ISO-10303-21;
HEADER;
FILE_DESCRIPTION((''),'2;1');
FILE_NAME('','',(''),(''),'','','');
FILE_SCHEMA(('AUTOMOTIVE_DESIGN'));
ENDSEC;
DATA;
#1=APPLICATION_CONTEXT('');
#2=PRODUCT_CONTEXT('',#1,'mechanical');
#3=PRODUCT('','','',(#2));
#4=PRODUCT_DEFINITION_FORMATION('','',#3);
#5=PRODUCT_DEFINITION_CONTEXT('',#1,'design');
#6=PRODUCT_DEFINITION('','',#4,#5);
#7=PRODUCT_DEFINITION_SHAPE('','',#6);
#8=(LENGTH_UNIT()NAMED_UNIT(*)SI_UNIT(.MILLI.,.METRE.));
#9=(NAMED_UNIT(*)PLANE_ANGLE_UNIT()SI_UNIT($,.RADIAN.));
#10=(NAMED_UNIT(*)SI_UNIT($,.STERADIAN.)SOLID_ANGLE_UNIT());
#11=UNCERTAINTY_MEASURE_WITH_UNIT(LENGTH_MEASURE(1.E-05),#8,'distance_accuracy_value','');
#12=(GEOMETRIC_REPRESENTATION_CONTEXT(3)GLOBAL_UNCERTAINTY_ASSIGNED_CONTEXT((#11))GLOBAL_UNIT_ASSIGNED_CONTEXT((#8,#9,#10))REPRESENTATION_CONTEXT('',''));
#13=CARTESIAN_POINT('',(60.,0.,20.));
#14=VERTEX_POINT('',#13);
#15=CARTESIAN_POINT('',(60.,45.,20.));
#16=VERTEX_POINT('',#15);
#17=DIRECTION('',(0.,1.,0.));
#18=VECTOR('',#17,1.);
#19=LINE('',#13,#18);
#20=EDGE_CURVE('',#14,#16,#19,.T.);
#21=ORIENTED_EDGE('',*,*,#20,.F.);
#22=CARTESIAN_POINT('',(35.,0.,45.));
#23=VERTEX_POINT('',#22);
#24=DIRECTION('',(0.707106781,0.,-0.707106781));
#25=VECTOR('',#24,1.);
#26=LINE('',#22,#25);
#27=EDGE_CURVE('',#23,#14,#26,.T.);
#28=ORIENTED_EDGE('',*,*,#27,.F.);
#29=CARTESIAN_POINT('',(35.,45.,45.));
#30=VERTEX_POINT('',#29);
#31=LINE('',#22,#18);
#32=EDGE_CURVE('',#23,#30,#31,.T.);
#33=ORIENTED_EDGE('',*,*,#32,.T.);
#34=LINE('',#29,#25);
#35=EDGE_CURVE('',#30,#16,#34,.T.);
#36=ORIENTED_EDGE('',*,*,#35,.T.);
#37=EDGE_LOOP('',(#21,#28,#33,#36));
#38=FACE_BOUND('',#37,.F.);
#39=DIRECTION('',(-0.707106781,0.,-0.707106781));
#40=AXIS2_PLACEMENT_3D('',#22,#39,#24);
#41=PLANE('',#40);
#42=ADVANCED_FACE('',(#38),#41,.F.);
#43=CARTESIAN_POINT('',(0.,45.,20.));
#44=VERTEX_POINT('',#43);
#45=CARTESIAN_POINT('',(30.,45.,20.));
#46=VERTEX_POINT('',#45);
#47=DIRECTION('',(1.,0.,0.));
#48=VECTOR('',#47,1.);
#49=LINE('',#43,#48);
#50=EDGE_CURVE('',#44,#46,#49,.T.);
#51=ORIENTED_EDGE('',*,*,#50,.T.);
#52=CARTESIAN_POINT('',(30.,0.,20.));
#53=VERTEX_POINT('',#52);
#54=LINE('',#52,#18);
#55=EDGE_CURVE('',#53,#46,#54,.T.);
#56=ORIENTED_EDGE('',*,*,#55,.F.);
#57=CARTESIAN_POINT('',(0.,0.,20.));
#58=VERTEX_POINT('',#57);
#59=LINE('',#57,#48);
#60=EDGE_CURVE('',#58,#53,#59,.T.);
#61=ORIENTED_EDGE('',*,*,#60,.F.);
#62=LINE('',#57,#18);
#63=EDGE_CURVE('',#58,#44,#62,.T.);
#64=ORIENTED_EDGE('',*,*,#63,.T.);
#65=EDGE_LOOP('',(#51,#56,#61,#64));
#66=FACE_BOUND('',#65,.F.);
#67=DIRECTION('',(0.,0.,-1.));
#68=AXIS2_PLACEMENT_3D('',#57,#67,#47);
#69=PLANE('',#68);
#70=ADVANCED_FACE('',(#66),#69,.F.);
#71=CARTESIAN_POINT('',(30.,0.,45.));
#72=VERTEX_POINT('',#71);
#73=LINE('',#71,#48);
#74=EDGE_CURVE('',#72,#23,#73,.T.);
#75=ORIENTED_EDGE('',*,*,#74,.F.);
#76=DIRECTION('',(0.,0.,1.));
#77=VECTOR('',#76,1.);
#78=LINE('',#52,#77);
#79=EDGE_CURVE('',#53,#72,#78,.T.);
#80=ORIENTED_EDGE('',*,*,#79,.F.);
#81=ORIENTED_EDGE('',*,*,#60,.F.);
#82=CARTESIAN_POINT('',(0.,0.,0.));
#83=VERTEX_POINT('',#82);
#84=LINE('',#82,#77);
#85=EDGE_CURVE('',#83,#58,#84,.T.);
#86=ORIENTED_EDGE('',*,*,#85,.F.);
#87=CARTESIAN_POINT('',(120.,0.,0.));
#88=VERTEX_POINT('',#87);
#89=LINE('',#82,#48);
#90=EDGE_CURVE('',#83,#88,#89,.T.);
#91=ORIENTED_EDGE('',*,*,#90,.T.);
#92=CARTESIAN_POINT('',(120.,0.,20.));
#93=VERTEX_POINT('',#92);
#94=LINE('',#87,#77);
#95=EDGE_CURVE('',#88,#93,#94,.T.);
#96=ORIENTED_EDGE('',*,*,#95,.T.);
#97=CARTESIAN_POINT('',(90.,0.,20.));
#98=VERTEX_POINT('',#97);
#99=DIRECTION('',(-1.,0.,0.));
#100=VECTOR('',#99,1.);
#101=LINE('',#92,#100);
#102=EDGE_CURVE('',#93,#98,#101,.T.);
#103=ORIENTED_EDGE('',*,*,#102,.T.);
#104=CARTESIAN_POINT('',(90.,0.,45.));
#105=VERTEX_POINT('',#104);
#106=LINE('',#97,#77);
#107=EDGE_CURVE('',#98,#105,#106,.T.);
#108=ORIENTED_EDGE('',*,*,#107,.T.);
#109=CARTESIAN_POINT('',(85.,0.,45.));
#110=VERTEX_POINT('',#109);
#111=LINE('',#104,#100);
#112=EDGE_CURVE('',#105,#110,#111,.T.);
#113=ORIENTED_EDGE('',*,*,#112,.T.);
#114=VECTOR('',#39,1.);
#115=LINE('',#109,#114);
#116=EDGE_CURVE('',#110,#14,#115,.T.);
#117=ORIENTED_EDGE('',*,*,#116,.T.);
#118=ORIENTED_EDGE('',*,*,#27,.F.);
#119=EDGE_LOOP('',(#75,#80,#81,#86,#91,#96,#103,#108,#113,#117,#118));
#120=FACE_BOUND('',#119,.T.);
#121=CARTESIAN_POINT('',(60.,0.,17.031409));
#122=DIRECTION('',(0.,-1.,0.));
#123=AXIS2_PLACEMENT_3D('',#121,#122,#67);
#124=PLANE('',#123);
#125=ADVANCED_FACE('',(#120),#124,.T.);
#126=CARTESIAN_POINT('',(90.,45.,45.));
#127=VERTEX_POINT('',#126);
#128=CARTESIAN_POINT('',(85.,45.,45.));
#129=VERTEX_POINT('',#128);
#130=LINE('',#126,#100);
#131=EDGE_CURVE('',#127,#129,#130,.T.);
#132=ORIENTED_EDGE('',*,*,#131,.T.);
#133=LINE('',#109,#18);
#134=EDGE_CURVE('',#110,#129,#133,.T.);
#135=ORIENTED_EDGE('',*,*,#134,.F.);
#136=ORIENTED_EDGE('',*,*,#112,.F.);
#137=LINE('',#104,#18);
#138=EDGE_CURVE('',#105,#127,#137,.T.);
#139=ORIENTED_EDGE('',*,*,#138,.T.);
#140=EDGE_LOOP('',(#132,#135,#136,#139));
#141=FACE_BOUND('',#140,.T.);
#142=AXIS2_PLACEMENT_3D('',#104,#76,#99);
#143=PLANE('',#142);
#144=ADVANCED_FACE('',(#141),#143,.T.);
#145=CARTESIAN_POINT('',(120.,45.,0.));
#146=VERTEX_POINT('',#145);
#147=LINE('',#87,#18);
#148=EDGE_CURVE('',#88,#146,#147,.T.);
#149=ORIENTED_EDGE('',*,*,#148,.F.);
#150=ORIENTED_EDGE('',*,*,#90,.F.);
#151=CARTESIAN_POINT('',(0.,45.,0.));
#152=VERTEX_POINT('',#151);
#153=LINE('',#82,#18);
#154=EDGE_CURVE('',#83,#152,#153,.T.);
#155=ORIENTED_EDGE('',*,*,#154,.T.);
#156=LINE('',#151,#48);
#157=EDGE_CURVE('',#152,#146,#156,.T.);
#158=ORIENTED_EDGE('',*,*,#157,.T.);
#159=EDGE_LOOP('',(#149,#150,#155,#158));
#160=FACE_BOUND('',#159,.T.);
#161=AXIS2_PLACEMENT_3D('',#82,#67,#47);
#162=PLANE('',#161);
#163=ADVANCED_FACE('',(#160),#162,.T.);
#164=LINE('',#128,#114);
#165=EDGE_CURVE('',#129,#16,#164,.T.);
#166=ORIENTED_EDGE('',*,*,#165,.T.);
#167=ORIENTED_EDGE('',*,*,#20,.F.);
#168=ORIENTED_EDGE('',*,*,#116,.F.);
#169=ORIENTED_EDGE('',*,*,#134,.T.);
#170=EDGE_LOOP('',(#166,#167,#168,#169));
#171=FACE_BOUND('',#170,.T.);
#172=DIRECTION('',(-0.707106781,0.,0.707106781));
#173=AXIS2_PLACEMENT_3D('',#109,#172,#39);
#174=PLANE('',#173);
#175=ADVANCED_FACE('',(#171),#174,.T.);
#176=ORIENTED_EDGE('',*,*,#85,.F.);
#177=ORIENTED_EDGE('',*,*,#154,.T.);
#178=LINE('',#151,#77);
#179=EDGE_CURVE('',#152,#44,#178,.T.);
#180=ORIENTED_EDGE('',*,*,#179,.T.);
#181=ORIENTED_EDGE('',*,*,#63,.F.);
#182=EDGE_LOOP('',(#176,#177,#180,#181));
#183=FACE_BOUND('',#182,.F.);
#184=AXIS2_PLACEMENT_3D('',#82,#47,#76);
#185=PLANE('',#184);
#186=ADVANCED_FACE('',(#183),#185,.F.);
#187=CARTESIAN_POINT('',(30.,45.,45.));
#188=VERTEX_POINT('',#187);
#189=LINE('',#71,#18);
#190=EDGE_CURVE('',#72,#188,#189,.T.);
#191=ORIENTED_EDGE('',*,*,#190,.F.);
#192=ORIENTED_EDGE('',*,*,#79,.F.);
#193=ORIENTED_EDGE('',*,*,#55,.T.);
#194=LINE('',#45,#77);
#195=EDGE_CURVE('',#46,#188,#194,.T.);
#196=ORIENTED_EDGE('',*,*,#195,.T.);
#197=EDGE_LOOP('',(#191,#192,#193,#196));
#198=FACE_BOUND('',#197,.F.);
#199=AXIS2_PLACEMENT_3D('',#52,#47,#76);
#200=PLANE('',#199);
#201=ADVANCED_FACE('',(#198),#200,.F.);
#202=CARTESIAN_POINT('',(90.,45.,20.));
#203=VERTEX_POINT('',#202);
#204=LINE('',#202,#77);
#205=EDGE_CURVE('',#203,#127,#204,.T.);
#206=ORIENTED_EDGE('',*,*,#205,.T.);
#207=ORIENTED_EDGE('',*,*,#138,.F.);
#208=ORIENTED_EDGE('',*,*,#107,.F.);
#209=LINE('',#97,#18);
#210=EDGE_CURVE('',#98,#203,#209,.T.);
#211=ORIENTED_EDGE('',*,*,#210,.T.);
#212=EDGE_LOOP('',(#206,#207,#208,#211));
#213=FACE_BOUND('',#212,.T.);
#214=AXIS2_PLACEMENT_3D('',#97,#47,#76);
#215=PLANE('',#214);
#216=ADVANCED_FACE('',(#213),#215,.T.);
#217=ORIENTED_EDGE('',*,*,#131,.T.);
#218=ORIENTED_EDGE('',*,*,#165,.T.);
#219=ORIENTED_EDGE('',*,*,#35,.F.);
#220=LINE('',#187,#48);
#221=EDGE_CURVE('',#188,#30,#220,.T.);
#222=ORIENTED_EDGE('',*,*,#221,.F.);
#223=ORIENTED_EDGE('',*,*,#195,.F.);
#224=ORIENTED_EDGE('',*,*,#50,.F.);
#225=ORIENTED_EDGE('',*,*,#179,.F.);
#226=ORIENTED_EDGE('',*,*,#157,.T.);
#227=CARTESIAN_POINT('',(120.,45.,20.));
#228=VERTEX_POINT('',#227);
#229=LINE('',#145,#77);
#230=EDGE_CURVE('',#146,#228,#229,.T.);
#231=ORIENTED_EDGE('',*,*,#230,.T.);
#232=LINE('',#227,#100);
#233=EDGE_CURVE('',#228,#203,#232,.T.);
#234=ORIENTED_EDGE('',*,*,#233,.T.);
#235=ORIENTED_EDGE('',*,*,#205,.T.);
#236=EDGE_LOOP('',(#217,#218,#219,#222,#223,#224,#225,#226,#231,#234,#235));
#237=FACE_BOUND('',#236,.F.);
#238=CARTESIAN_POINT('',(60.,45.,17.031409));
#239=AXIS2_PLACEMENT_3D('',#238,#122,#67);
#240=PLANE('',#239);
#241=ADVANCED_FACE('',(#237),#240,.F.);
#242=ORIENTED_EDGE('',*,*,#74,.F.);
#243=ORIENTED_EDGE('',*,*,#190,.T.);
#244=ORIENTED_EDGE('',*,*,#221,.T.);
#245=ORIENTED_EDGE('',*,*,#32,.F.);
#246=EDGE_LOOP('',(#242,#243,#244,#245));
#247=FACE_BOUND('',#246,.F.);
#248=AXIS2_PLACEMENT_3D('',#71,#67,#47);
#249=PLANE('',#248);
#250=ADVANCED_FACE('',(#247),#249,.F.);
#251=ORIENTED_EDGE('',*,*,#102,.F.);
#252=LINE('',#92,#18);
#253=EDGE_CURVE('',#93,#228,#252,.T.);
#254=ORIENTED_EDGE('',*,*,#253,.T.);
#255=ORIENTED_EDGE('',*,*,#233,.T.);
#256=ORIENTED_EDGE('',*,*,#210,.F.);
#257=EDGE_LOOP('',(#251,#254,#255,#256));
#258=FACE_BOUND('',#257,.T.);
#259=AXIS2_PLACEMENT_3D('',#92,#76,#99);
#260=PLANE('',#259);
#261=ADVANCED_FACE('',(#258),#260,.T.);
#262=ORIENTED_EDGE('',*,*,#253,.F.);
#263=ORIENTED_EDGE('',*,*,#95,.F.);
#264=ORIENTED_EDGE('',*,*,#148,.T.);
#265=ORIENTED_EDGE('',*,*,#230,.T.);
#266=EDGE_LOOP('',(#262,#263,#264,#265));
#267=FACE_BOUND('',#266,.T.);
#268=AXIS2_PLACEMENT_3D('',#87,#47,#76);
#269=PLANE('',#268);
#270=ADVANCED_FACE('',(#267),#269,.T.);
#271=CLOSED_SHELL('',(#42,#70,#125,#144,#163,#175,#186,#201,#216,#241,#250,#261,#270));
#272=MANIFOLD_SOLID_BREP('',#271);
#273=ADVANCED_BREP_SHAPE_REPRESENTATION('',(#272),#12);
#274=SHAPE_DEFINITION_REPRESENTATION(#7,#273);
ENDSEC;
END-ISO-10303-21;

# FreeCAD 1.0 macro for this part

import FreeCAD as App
import Part
import Sketcher
from FreeCAD import Vector


def add_polygon(sketch, points):
    """Adds a closed chain of lines whose ends are joined by coincident constraints."""
    first, n = sketch.GeometryCount, len(points)
    for a, b in zip(points, points[1:] + points[:1]):
        sketch.addGeometry(Part.LineSegment(App.Vector(*a, 0), App.Vector(*b, 0)), False)
    for i in range(n):
        sketch.addConstraint(Sketcher.Constraint("Coincident", first + i, 2, first + (i + 1) % n, 1))

doc = App.newDocument("Part")
body = doc.addObject("PartDesign::Body", "Body")

# Sketch on XZ plane
sketch1 = body.newObject("Sketcher::SketchObject", "Sketch")
sketch1.AttachmentSupport = (doc.getObject("XZ_Plane"), [""])
sketch1.MapMode = "FlatFace"
add_polygon(sketch1, [(120, 20), (90, 20), (90, 45), (85, 45), (60, 20), (35, 45), (30, 45), (30, 20), (0, 20), (0, 0), (120, 0)])  # lines 0-10
sketch1.addConstraint(Sketcher.Constraint("Horizontal", 0))
sketch1.addConstraint(Sketcher.Constraint("Vertical", 1))
sketch1.addConstraint(Sketcher.Constraint("Horizontal", 2))
sketch1.addConstraint(Sketcher.Constraint("Horizontal", 5))
sketch1.addConstraint(Sketcher.Constraint("Vertical", 6))
sketch1.addConstraint(Sketcher.Constraint("Horizontal", 7))
sketch1.addConstraint(Sketcher.Constraint("Vertical", 8))
sketch1.addConstraint(Sketcher.Constraint("Horizontal", 9))
sketch1.addConstraint(Sketcher.Constraint("Vertical", 10))
sketch1.addConstraint(Sketcher.Constraint("Coincident", 8, 2, -1, 1))
sketch1.addConstraint(Sketcher.Constraint("Perpendicular", 3, 4))
sketch1.addConstraint(Sketcher.Constraint("Horizontal", 0, 2, 3, 2))
sketch1.addConstraint(Sketcher.Constraint("Horizontal", 2, 2, 4, 2))
sketch1.addConstraint(Sketcher.Constraint("Horizontal", 3, 2, 6, 2))
sketch1.addConstraint(Sketcher.Constraint("Equal", 2, 5))
sketch1.addConstraint(Sketcher.Constraint("Equal", 0, 7))
sketch1.addConstraint(Sketcher.Constraint("Equal", 3, 4))
sketch1.addConstraint(Sketcher.Constraint("DistanceX", 0, 2, 0, 1, 30.0))
sketch1.addConstraint(Sketcher.Constraint("DistanceX", 2, 2, 2, 1, 5.0))
sketch1.addConstraint(Sketcher.Constraint("DistanceX", 9, 1, 9, 2, 120.0))
sketch1.addConstraint(Sketcher.Constraint("DistanceY", 8, 2, 8, 1, 20.0))
pad1 = body.newObject("PartDesign::Pad", "Pad")
pad1.Profile = sketch1
pad1.Length = 45
pad1.Reversed = True

doc.recompute()
